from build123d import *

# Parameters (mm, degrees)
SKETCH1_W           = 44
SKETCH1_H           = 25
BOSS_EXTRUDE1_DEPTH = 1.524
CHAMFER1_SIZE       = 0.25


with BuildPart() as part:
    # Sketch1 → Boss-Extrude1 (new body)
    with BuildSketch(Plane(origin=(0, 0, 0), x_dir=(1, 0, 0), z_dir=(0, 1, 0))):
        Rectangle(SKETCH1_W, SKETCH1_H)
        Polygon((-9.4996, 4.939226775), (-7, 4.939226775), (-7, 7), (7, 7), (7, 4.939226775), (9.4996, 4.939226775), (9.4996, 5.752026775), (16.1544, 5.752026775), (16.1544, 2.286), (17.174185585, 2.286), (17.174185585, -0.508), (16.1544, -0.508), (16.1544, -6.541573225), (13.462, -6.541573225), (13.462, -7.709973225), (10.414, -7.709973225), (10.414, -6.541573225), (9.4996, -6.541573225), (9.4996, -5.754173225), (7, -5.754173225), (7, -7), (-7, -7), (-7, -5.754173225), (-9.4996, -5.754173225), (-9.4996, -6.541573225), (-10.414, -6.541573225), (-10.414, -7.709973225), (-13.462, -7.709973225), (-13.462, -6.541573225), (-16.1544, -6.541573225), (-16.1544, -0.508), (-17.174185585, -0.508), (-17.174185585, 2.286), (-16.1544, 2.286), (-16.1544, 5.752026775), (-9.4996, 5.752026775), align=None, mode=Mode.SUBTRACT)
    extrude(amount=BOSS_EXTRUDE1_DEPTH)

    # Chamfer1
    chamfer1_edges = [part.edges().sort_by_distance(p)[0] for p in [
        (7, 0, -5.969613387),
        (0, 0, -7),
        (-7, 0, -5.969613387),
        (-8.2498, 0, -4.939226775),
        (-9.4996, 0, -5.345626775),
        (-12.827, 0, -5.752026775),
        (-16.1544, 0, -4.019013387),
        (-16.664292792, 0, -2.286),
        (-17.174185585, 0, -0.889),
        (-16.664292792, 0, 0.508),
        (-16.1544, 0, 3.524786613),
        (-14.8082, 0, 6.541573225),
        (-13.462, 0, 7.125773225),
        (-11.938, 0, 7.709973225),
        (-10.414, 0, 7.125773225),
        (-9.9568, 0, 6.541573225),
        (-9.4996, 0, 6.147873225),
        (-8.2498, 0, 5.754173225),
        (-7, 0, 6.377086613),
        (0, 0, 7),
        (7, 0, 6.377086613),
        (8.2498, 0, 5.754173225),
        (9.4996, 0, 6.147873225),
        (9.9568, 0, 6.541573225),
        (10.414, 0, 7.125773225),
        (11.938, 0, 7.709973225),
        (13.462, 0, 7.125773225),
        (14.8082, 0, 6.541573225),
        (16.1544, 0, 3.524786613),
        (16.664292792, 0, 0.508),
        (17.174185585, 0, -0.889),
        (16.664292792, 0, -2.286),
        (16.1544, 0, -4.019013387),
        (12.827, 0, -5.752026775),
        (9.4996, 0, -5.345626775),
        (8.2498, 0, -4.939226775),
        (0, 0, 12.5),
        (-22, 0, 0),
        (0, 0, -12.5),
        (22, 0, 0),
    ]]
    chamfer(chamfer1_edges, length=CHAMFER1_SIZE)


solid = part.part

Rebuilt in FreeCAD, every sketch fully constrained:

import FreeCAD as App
import Part
import Sketcher

V = App.Vector
Q = App.Units.Quantity


def edges_at(feature, points):
    """Names of the edges that pass closest to the given points."""
    edges = feature.Shape.Edges
    near = lambda p: min(range(len(edges)), key=lambda i: edges[i].distToShape(Part.Vertex(*p))[0])
    return sorted({f"Edge{near(p) + 1}" for p in points})

doc = App.newDocument("Part")
body = doc.addObject("PartDesign::Body", "Body")

# Sketch on XZ plane
sketch1 = doc.addObject("Sketcher::SketchObject", "Sketch")
body.addObject(sketch1)
sketch1.AttachmentSupport = (doc.XZ_Plane, [""])
sketch1.MapMode = "FlatFace"
sketch1.addGeometry([
    Part.LineSegment(V(-22, -12.5, 0), V(-22, 12.5, 0)),  # 0
    Part.LineSegment(V(-22, 12.5, 0), V(22, 12.5, 0)),  # 1
    Part.LineSegment(V(22, 12.5, 0), V(22, -12.5, 0)),  # 2
    Part.LineSegment(V(22, -12.5, 0), V(-22, -12.5, 0)),  # 3
    Part.LineSegment(V(-9.4996, -5.752027, 0), V(-9.4996, -4.939227, 0)),  # 4
    Part.LineSegment(V(-9.4996, -4.939227, 0), V(-7, -4.939227, 0)),  # 5
    Part.LineSegment(V(-7, -4.939227, 0), V(-7, -7, 0)),  # 6
    Part.LineSegment(V(-7, -7, 0), V(7, -7, 0)),  # 7
    Part.LineSegment(V(7, -7, 0), V(7, -4.939227, 0)),  # 8
    Part.LineSegment(V(7, -4.939227, 0), V(9.4996, -4.939227, 0)),  # 9
    Part.LineSegment(V(9.4996, -4.939227, 0), V(9.4996, -5.752027, 0)),  # 10
    Part.LineSegment(V(9.4996, -5.752027, 0), V(16.1544, -5.752027, 0)),  # 11
    Part.LineSegment(V(16.1544, -5.752027, 0), V(16.1544, -2.286, 0)),  # 12
    Part.LineSegment(V(16.1544, -2.286, 0), V(17.174186, -2.286, 0)),  # 13
    Part.LineSegment(V(17.174186, -2.286, 0), V(17.174186, 0.508, 0)),  # 14
    Part.LineSegment(V(17.174186, 0.508, 0), V(16.1544, 0.508, 0)),  # 15
    Part.LineSegment(V(16.1544, 0.508, 0), V(16.1544, 6.541573, 0)),  # 16
    Part.LineSegment(V(16.1544, 6.541573, 0), V(13.462, 6.541573, 0)),  # 17
    Part.LineSegment(V(13.462, 6.541573, 0), V(13.462, 7.709973, 0)),  # 18
    Part.LineSegment(V(13.462, 7.709973, 0), V(10.414, 7.709973, 0)),  # 19
    Part.LineSegment(V(10.414, 7.709973, 0), V(10.414, 6.541573, 0)),  # 20
    Part.LineSegment(V(10.414, 6.541573, 0), V(9.4996, 6.541573, 0)),  # 21
    Part.LineSegment(V(9.4996, 6.541573, 0), V(9.4996, 5.754173, 0)),  # 22
    Part.LineSegment(V(9.4996, 5.754173, 0), V(7, 5.754173, 0)),  # 23
    Part.LineSegment(V(7, 5.754173, 0), V(7, 7, 0)),  # 24
    Part.LineSegment(V(7, 7, 0), V(-7, 7, 0)),  # 25
    Part.LineSegment(V(-7, 7, 0), V(-7, 5.754173, 0)),  # 26
    Part.LineSegment(V(-7, 5.754173, 0), V(-9.4996, 5.754173, 0)),  # 27
    Part.LineSegment(V(-9.4996, 5.754173, 0), V(-9.4996, 6.541573, 0)),  # 28
    Part.LineSegment(V(-9.4996, 6.541573, 0), V(-10.414, 6.541573, 0)),  # 29
    Part.LineSegment(V(-10.414, 6.541573, 0), V(-10.414, 7.709973, 0)),  # 30
    Part.LineSegment(V(-10.414, 7.709973, 0), V(-13.462, 7.709973, 0)),  # 31
    Part.LineSegment(V(-13.462, 7.709973, 0), V(-13.462, 6.541573, 0)),  # 32
    Part.LineSegment(V(-13.462, 6.541573, 0), V(-16.1544, 6.541573, 0)),  # 33
    Part.LineSegment(V(-16.1544, 6.541573, 0), V(-16.1544, 0.508, 0)),  # 34
    Part.LineSegment(V(-16.1544, 0.508, 0), V(-17.174186, 0.508, 0)),  # 35
    Part.LineSegment(V(-17.174186, 0.508, 0), V(-17.174186, -2.286, 0)),  # 36
    Part.LineSegment(V(-17.174186, -2.286, 0), V(-16.1544, -2.286, 0)),  # 37
    Part.LineSegment(V(-16.1544, -2.286, 0), V(-16.1544, -5.752027, 0)),  # 38
    Part.LineSegment(V(-16.1544, -5.752027, 0), V(-9.4996, -5.752027, 0)),  # 39
], False)
sketch1.addConstraint([
    Sketcher.Constraint("Coincident", 0, 2, 1, 1),
    Sketcher.Constraint("Coincident", 1, 2, 2, 1),
    Sketcher.Constraint("Coincident", 2, 2, 3, 1),
    Sketcher.Constraint("Coincident", 3, 2, 0, 1),
    Sketcher.Constraint("Coincident", 4, 2, 5, 1),
    Sketcher.Constraint("Coincident", 5, 2, 6, 1),
    Sketcher.Constraint("Coincident", 6, 2, 7, 1),
    Sketcher.Constraint("Coincident", 7, 2, 8, 1),
    Sketcher.Constraint("Coincident", 8, 2, 9, 1),
    Sketcher.Constraint("Coincident", 9, 2, 10, 1),
    Sketcher.Constraint("Coincident", 10, 2, 11, 1),
    Sketcher.Constraint("Coincident", 11, 2, 12, 1),
    Sketcher.Constraint("Coincident", 12, 2, 13, 1),
    Sketcher.Constraint("Coincident", 13, 2, 14, 1),
    Sketcher.Constraint("Coincident", 14, 2, 15, 1),
    Sketcher.Constraint("Coincident", 15, 2, 16, 1),
    Sketcher.Constraint("Coincident", 16, 2, 17, 1),
    Sketcher.Constraint("Coincident", 17, 2, 18, 1),
    Sketcher.Constraint("Coincident", 18, 2, 19, 1),
    Sketcher.Constraint("Coincident", 19, 2, 20, 1),
    Sketcher.Constraint("Coincident", 20, 2, 21, 1),
    Sketcher.Constraint("Coincident", 21, 2, 22, 1),
    Sketcher.Constraint("Coincident", 22, 2, 23, 1),
    Sketcher.Constraint("Coincident", 23, 2, 24, 1),
    Sketcher.Constraint("Coincident", 24, 2, 25, 1),
    Sketcher.Constraint("Coincident", 25, 2, 26, 1),
    Sketcher.Constraint("Coincident", 26, 2, 27, 1),
    Sketcher.Constraint("Coincident", 27, 2, 28, 1),
    Sketcher.Constraint("Coincident", 28, 2, 29, 1),
    Sketcher.Constraint("Coincident", 29, 2, 30, 1),
    Sketcher.Constraint("Coincident", 30, 2, 31, 1),
    Sketcher.Constraint("Coincident", 31, 2, 32, 1),
    Sketcher.Constraint("Coincident", 32, 2, 33, 1),
    Sketcher.Constraint("Coincident", 33, 2, 34, 1),
    Sketcher.Constraint("Coincident", 34, 2, 35, 1),
    Sketcher.Constraint("Coincident", 35, 2, 36, 1),
    Sketcher.Constraint("Coincident", 36, 2, 37, 1),
    Sketcher.Constraint("Coincident", 37, 2, 38, 1),
    Sketcher.Constraint("Coincident", 38, 2, 39, 1),
    Sketcher.Constraint("Coincident", 39, 2, 4, 1),
    Sketcher.Constraint("Vertical", 0),
    Sketcher.Constraint("Horizontal", 1),
    Sketcher.Constraint("Vertical", 2),
    Sketcher.Constraint("Horizontal", 3),
    Sketcher.Constraint("Vertical", 4),
    Sketcher.Constraint("Horizontal", 5),
    Sketcher.Constraint("Vertical", 6),
    Sketcher.Constraint("Horizontal", 7),
    Sketcher.Constraint("Vertical", 8),
    Sketcher.Constraint("Horizontal", 9),
    Sketcher.Constraint("Vertical", 10),
    Sketcher.Constraint("Horizontal", 11),
    Sketcher.Constraint("Vertical", 12),
    Sketcher.Constraint("Horizontal", 13),
    Sketcher.Constraint("Vertical", 14),
    Sketcher.Constraint("Horizontal", 15),
    Sketcher.Constraint("Vertical", 16),
    Sketcher.Constraint("Horizontal", 17),
    Sketcher.Constraint("Vertical", 18),
    Sketcher.Constraint("Horizontal", 19),
    Sketcher.Constraint("Vertical", 20),
    Sketcher.Constraint("Horizontal", 21),
    Sketcher.Constraint("Vertical", 22),
    Sketcher.Constraint("Horizontal", 23),
    Sketcher.Constraint("Vertical", 24),
    Sketcher.Constraint("Horizontal", 25),
    Sketcher.Constraint("Vertical", 26),
    Sketcher.Constraint("Horizontal", 27),
    Sketcher.Constraint("Vertical", 28),
    Sketcher.Constraint("Horizontal", 29),
    Sketcher.Constraint("Vertical", 30),
    Sketcher.Constraint("Horizontal", 31),
    Sketcher.Constraint("Vertical", 32),
    Sketcher.Constraint("Horizontal", 33),
    Sketcher.Constraint("Vertical", 34),
    Sketcher.Constraint("Horizontal", 35),
    Sketcher.Constraint("Vertical", 36),
    Sketcher.Constraint("Horizontal", 37),
    Sketcher.Constraint("Vertical", 38),
    Sketcher.Constraint("Horizontal", 39),
    Sketcher.Constraint("Symmetric", 0, 2, 2, 2, -1, 1),
    Sketcher.Constraint("Symmetric", 6, 2, 24, 2, -1, 1),
    Sketcher.Constraint("Symmetric", 5, 2, 8, 2, -2),
    Sketcher.Constraint("Symmetric", 23, 2, 26, 2, -2),
    Sketcher.Constraint("Symmetric", 21, 2, 28, 2, -2),
    Sketcher.Constraint("Symmetric", 19, 2, 30, 2, -2),
    Sketcher.Constraint("Symmetric", 17, 2, 32, 2, -2),
    Sketcher.Constraint("Symmetric", 15, 2, 34, 2, -2),
    Sketcher.Constraint("Symmetric", 13, 2, 36, 2, -2),
    Sketcher.Constraint("Symmetric", 11, 2, 38, 2, -2),
    Sketcher.Constraint("Horizontal", 17, 2, 20, 2),
    Sketcher.Constraint("Vertical", 12, 2, 15, 2),
    Sketcher.Constraint("Vertical", 10, 2, 21, 2),
    Sketcher.Constraint("Vertical", 4, 2, 27, 2),
    Sketcher.Constraint("DistanceX", 19, 2, 19, 1, Q("0.12 in")),
    Sketcher.Constraint("DistanceY", 14, 1, 14, 2, Q("0.11 in")),
    Sketcher.Constraint("DistanceX", 11, 1, 11, 2, Q("0.262 in")),
    Sketcher.Constraint("DistanceX", 17, 2, 17, 1, Q("0.106 in")),
    Sketcher.Constraint("DistanceY", 4, 1, 4, 2, Q("0.032 in")),
    Sketcher.Constraint("DistanceY", 18, 1, 18, 2, Q("0.046 in")),
    Sketcher.Constraint("DistanceY", 22, 2, 22, 1, Q("0.031 in")),
    Sketcher.Constraint("DistanceY", 12, 2, -1, 1, Q("0.09 in")),
    Sketcher.Constraint("DistanceX", -1, 1, 17, 2, Q("0.53 in")),
    Sketcher.Constraint("DistanceY", 5, 2, 26, 2, Q("0.421 in")),
    Sketcher.Constraint("DistanceX", 1, 1, 1, 2, Q("44 mm")),
    Sketcher.Constraint("DistanceX", 5, 1, 5, 2, Q("2.4996 mm")),
    Sketcher.Constraint("DistanceY", 0, 1, 0, 2, Q("25 mm")),
    Sketcher.Constraint("DistanceY", 6, 2, -1, 1, Q("7 mm")),
    Sketcher.Constraint("DistanceX", 13, 1, 13, 2, Q("1.019786 mm")),
    Sketcher.Constraint("DistanceY", 6, 2, 6, 1, Q("2.060773 mm")),
])
pad1 = doc.addObject("PartDesign::Pad", "Pad")
body.addObject(pad1)
pad1.Profile = sketch1
pad1.Length = Q("0.06 in")
pad1.Reversed = True
doc.recompute()

chamfer = doc.addObject("PartDesign::Chamfer", "Chamfer")
body.addObject(chamfer)
chamfer.Base = (pad1, edges_at(pad1, [
    (7, 0, -5.97),
    (0, 0, -7),
    (-7, 0, -5.97),
    (-8.25, 0, -4.939),
    (-9.5, 0, -5.346),
    (-12.827, 0, -5.752),
    (-16.154, 0, -4.019),
    (-16.664, 0, -2.286),
    (-17.174, 0, -0.889),
    (-16.664, 0, 0.508),
    (-16.154, 0, 3.525),
    (-14.808, 0, 6.542),
    (-13.462, 0, 7.126),
    (-11.938, 0, 7.71),
    (-10.414, 0, 7.126),
    (-9.957, 0, 6.542),
    (-9.5, 0, 6.148),
    (-8.25, 0, 5.754),
    (-7, 0, 6.377),
    (0, 0, 7),
    (7, 0, 6.377),
    (8.25, 0, 5.754),
    (9.5, 0, 6.148),
    (9.957, 0, 6.542),
    (10.414, 0, 7.126),
    (11.938, 0, 7.71),
    (13.462, 0, 7.126),
    (14.808, 0, 6.542),
    (16.154, 0, 3.525),
    (16.664, 0, 0.508),
    (17.174, 0, -0.889),
    (16.664, 0, -2.286),
    (16.154, 0, -4.019),
    (12.827, 0, -5.752),
    (9.5, 0, -5.346),
    (8.25, 0, -4.939),
    (0, 0, 12.5),
    (-22, 0, 0),
    (0, 0, -12.5),
    (22, 0, 0),
]))
chamfer.Size = 0.25

doc.recompute()
